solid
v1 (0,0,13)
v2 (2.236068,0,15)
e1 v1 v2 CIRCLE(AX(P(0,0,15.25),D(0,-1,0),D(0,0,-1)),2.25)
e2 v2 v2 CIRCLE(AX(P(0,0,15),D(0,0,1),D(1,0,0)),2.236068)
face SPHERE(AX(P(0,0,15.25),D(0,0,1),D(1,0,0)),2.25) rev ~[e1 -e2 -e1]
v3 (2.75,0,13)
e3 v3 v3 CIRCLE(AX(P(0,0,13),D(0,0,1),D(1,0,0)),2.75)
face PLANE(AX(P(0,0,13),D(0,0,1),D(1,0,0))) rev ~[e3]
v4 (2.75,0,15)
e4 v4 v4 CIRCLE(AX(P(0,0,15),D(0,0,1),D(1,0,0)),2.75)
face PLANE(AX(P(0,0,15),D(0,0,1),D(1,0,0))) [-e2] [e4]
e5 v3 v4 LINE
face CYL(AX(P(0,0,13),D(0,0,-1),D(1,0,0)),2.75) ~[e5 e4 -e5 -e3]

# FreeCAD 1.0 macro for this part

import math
import FreeCAD as App
import Part
import Sketcher

V = App.Vector
Q = App.Units.Quantity

doc = App.newDocument("Part")
body = doc.addObject("PartDesign::Body", "Body")

# Sketch on XZ plane
sketch1 = body.newObject("Sketcher::SketchObject", "Sketch")
sketch1.AttachmentSupport = (doc.getObject("XZ_Plane"), [""])
sketch1.MapMode = "FlatFace"
sketch1.addGeometry([
    Part.ArcOfCircle(Part.Circle(V(0, 15.2, 0), V(0, 0, 1), 2.2), math.radians(-90), math.radians(90)),
    Part.LineSegment(V(0, 17.5, 0), V(0, 13, 0)),
], False)
sketch1.addConstraint([
    Sketcher.Constraint("Coincident", 0, 1, 1, 2),
    Sketcher.Constraint("Coincident", 1, 1, 0, 2),
    Sketcher.Constraint("Vertical", 1),
    Sketcher.Constraint("PointOnObject", 0, 3, -2),
    Sketcher.Constraint("PointOnObject", 0, 1, -2),
    Sketcher.Constraint("Radius", 0, Q("2.25 mm")),
    Sketcher.Constraint("DistanceY", -1, 1, 0, 1, Q("13 mm")),
])
revolution = body.newObject("PartDesign::Revolution", "Revolution")
revolution.Profile = sketch1
revolution.ReferenceAxis = (sketch1, ["V_Axis"])
revolution.Angle = 360
body2 = doc.addObject("PartDesign::Body", "Body001")

# Sketch on XY plane
sketch2 = body2.newObject("Sketcher::SketchObject", "Sketch001")
sketch2.AttachmentSupport = (doc.getObject("XY_Plane001"), [""])
sketch2.MapMode = "FlatFace"
sketch2.AttachmentOffset = App.Placement(V(0, 0, 13), App.Rotation())
sketch2.addGeometry(Part.Circle(V(0, 0, 0), V(0, 0, 1), 2.8), False)
sketch2.addConstraint([
    Sketcher.Constraint("Coincident", 0, 3, -1, 1),
    Sketcher.Constraint("Diameter", 0, Q("5.5 mm")),
])
pad1 = body2.newObject("PartDesign::Pad", "Pad")
pad1.Profile = sketch2
pad1.Length = 2
doc.recompute()

boolean = body2.newObject("PartDesign::Boolean", "Boolean")
boolean.Type = "Cut"
boolean.addObjects([body])

doc.recompute()
